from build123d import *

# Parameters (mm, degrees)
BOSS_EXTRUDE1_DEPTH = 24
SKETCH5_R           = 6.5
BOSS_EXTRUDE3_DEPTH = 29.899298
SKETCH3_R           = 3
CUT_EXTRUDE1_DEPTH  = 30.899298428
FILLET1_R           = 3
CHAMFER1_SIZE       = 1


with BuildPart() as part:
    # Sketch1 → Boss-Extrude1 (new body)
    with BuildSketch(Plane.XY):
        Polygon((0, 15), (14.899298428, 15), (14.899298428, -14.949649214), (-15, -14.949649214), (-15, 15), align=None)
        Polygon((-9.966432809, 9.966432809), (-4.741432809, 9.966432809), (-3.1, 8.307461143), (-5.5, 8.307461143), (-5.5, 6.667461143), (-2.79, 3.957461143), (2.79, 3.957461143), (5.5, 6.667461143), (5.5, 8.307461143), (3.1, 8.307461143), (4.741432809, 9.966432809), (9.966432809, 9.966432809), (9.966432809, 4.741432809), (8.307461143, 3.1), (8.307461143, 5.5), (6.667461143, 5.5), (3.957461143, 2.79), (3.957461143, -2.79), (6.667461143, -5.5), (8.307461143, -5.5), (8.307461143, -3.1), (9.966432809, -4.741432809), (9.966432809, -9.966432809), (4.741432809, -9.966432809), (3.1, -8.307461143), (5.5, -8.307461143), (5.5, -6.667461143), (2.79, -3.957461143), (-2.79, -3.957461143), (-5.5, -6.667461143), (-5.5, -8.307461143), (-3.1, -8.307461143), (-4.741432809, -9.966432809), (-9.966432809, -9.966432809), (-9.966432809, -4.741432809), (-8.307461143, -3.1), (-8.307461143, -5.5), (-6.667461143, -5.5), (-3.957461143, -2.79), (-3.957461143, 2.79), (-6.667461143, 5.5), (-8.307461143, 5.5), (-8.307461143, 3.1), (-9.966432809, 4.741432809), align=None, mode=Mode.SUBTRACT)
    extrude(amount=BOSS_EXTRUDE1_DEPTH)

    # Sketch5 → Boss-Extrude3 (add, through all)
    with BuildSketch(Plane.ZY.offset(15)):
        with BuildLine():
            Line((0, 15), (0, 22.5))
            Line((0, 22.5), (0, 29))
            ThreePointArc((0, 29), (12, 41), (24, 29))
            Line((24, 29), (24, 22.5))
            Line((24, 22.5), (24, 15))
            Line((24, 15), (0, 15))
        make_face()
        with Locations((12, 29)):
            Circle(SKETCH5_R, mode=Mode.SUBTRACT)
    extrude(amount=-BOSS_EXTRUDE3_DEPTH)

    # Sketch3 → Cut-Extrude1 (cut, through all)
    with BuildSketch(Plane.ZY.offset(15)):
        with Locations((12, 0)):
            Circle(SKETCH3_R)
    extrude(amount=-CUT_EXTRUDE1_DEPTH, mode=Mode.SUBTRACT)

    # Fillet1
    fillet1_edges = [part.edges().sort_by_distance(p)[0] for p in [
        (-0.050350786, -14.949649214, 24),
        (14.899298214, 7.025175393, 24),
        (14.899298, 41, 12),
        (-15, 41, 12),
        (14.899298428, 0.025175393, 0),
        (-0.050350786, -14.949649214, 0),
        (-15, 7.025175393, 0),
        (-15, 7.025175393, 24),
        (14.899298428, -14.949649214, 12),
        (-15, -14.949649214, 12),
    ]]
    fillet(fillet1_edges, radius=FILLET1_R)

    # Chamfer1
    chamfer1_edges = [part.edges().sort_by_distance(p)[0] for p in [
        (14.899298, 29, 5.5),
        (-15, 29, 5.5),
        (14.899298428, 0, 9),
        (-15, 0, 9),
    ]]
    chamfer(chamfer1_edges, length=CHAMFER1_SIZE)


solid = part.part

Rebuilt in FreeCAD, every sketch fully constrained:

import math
import FreeCAD as App
import Part
import Sketcher

V = App.Vector


def edges_at(feature, points):
    """Names of the edges that pass closest to the given points."""
    edges = feature.Shape.Edges
    near = lambda p: min(range(len(edges)), key=lambda i: edges[i].distToShape(Part.Vertex(*p))[0])
    return sorted({f"Edge{near(p) + 1}" for p in points})


def add_polygon(sketch, points):
    """Adds a closed chain of lines whose ends are joined by coincident constraints."""
    first, n = sketch.GeometryCount, len(points)
    for a, b in zip(points, points[1:] + points[:1]):
        sketch.addGeometry(Part.LineSegment(App.Vector(*a, 0), App.Vector(*b, 0)), False)
    for i in range(n):
        sketch.addConstraint(Sketcher.Constraint("Coincident", first + i, 2, first + (i + 1) % n, 1))

doc = App.newDocument("Part")
body = doc.addObject("PartDesign::Body", "Body")

sketch1 = doc.addObject("Sketcher::SketchObject", "Sketch")
body.addObject(sketch1)
sketch1.AttachmentSupport = (doc.XY_Plane, [""])
sketch1.MapMode = "FlatFace"
add_polygon(sketch1, [(14.9, 15), (-15, 15), (-15, -14.9), (14.9, -14.9)])
add_polygon(sketch1, [(-10, 10), (-4.7, 10), (-3.1, 8.3), (-5.5, 8.3), (-5.5, 6.7), (-2.8, 4), (2.8, 4), (5.5, 6.7), (5.5, 8.3), (3.1, 8.3), (4.7, 10), (10, 10), (10, 4.7), (8.3, 3.1), (8.3, 5.5), (6.7, 5.5), (4, 2.8), (4, -2.8), (6.7, -5.5), (8.3, -5.5), (8.3, -3.1), (10, -4.7), (10, -10), (4.7, -10), (3.1, -8.3), (5.5, -8.3), (5.5, -6.7), (2.8, -4), (-2.8, -4), (-5.5, -6.7), (-5.5, -8.3), (-3.1, -8.3), (-4.7, -10), (-10, -10), (-10, -4.7), (-8.3, -3.1), (-8.3, -5.5), (-6.7, -5.5), (-4, -2.8), (-4, 2.8), (-6.7, 5.5), (-8.3, 5.5), (-8.3, 3.1), (-10, 4.7)])
sketch1.addConstraint(Sketcher.Constraint("Horizontal", 0))
sketch1.addConstraint(Sketcher.Constraint("Vertical", 1))
sketch1.addConstraint(Sketcher.Constraint("Horizontal", 2))
sketch1.addConstraint(Sketcher.Constraint("Vertical", 3))
sketch1.addConstraint(Sketcher.Constraint("Horizontal", 4))
sketch1.addConstraint(Sketcher.Constraint("Horizontal", 6))
sketch1.addConstraint(Sketcher.Constraint("Vertical", 7))
sketch1.addConstraint(Sketcher.Constraint("Horizontal", 9))
sketch1.addConstraint(Sketcher.Constraint("Vertical", 11))
sketch1.addConstraint(Sketcher.Constraint("Horizontal", 12))
sketch1.addConstraint(Sketcher.Constraint("Horizontal", 14))
sketch1.addConstraint(Sketcher.Constraint("Vertical", 15))
sketch1.addConstraint(Sketcher.Constraint("Vertical", 17))
sketch1.addConstraint(Sketcher.Constraint("Horizontal", 18))
sketch1.addConstraint(Sketcher.Constraint("Vertical", 20))
sketch1.addConstraint(Sketcher.Constraint("Horizontal", 22))
sketch1.addConstraint(Sketcher.Constraint("Vertical", 23))
sketch1.addConstraint(Sketcher.Constraint("Vertical", 25))
sketch1.addConstraint(Sketcher.Constraint("Horizontal", 26))
sketch1.addConstraint(Sketcher.Constraint("Horizontal", 28))
sketch1.addConstraint(Sketcher.Constraint("Vertical", 29))
sketch1.addConstraint(Sketcher.Constraint("Horizontal", 31))
sketch1.addConstraint(Sketcher.Constraint("Vertical", 33))
sketch1.addConstraint(Sketcher.Constraint("Horizontal", 34))
sketch1.addConstraint(Sketcher.Constraint("Horizontal", 36))
sketch1.addConstraint(Sketcher.Constraint("Vertical", 37))
sketch1.addConstraint(Sketcher.Constraint("Vertical", 39))
sketch1.addConstraint(Sketcher.Constraint("Horizontal", 40))
sketch1.addConstraint(Sketcher.Constraint("Vertical", 42))
sketch1.addConstraint(Sketcher.Constraint("Horizontal", 44))
sketch1.addConstraint(Sketcher.Constraint("Vertical", 45))
sketch1.addConstraint(Sketcher.Constraint("Vertical", 47))
sketch1.addConstraint(Sketcher.Constraint("Symmetric", 4, 2, 26, 2, -1, 1))
sketch1.addConstraint(Sketcher.Constraint("Symmetric", 5, 2, 27, 2, -1, 1))
sketch1.addConstraint(Sketcher.Constraint("Symmetric", 7, 2, 29, 2, -1, 1))
sketch1.addConstraint(Sketcher.Constraint("Symmetric", 8, 2, 30, 2, -1, 1))
sketch1.addConstraint(Sketcher.Constraint("Symmetric", 10, 2, 32, 2, -1, 1))
sketch1.addConstraint(Sketcher.Constraint("Symmetric", 12, 2, 34, 2, -1, 1))
sketch1.addConstraint(Sketcher.Constraint("Symmetric", 13, 2, 35, 2, -1, 1))
sketch1.addConstraint(Sketcher.Constraint("Symmetric", 15, 2, 37, 2, -1, 1))
sketch1.addConstraint(Sketcher.Constraint("Symmetric", 16, 2, 38, 2, -1, 1))
sketch1.addConstraint(Sketcher.Constraint("Symmetric", 18, 2, 40, 2, -1, 1))
sketch1.addConstraint(Sketcher.Constraint("Symmetric", 19, 2, 41, 2, -1, 1))
sketch1.addConstraint(Sketcher.Constraint("Symmetric", 21, 2, 43, 2, -1, 1))
sketch1.addConstraint(Sketcher.Constraint("Symmetric", 23, 2, 45, 2, -1, 1))
sketch1.addConstraint(Sketcher.Constraint("Symmetric", 24, 2, 46, 2, -1, 1))
sketch1.addConstraint(Sketcher.Constraint("Symmetric", 7, 2, 10, 2, -2))
sketch1.addConstraint(Sketcher.Constraint("Symmetric", 5, 2, 12, 2, -2))
sketch1.addConstraint(Sketcher.Constraint("Symmetric", 4, 2, 13, 2, -2))
sketch1.addConstraint(Sketcher.Constraint("Symmetric", 24, 2, 37, 2, -2))
sketch1.addConstraint(Sketcher.Constraint("Symmetric", 23, 2, 38, 2, -2))
sketch1.addConstraint(Sketcher.Constraint("Symmetric", 21, 2, 40, 2, -2))
sketch1.addConstraint(Sketcher.Constraint("Perpendicular", 8, 10))
sketch1.addConstraint(Sketcher.Constraint("Perpendicular", 5, 16))
sketch1.addConstraint(Sketcher.Constraint("Parallel", 10, 19))
sketch1.addConstraint(Sketcher.Constraint("Perpendicular", 19, 21))
sketch1.addConstraint(Sketcher.Constraint("Perpendicular", 30, 32))
sketch1.addConstraint(Sketcher.Constraint("Perpendicular", 41, 43))
sketch1.addConstraint(Sketcher.Constraint("Horizontal", 20, 2, 41, 2))
sketch1.addConstraint(Sketcher.Constraint("Equal", 44, 7))
sketch1.addConstraint(Sketcher.Constraint("Equal", 36, 15))
sketch1.addConstraint(Sketcher.Constraint("Equal", 34, 17))
sketch1.addConstraint(Sketcher.Constraint("Equal", 31, 20))
sketch1.addConstraint(Sketcher.Constraint("Equal", 13, 16))
sketch1.addConstraint(Sketcher.Constraint("Equal", 10, 19))
sketch1.addConstraint(Sketcher.Constraint("DistanceX", 6, 2, 6, 1, 2.4))
sketch1.addConstraint(Sketcher.Constraint("DistanceX", 0, 2, -1, 1, 15.0))
sketch1.addConstraint(Sketcher.Constraint("DistanceY", -1, 1, 0, 2, 15.0))
sketch1.addConstraint(Sketcher.Constraint("DistanceX", 7, 2, 10, 2, 11.0))
sketch1.addConstraint(Sketcher.Constraint("DistanceX", 9, 1, 9, 2, 5.58))
sketch1.addConstraint(Sketcher.Constraint("DistanceX", 18, 2, 18, 1, 1.64))
sketch1.addConstraint(Sketcher.Constraint("DistanceX", 4, 1, 4, 2, 5.225))
sketch1.addConstraint(Sketcher.Constraint("DistanceX", 0, 2, 0, 1, 29.899298))
sketch1.addConstraint(Sketcher.Constraint("DistanceY", 1, 2, 1, 1, 29.949649))
sketch1.addConstraint(Sketcher.Constraint("Distance", 5, 2.333771))
sketch1.addConstraint(Sketcher.Constraint("DistanceY", -1, 1, 5, 2, 8.307461))
pad1 = doc.addObject("PartDesign::Pad", "Pad")
body.addObject(pad1)
pad1.Profile = sketch1
pad1.Length = 24

sketch2 = doc.addObject("Sketcher::SketchObject", "Sketch001")
body.addObject(sketch2)
sketch2.AttachmentSupport = (doc.YZ_Plane, [""])
sketch2.MapMode = "FlatFace"
sketch2.AttachmentOffset = App.Placement(V(0, 0, -15), App.Rotation())
sketch2.addGeometry(Part.LineSegment(V(29, 0, 0), V(15, 0, 0)), False)
sketch2.addGeometry(Part.LineSegment(V(15, 0, 0), V(15, 24, 0)), False)
sketch2.addGeometry(Part.LineSegment(V(15, 24, 0), V(29, 24, 0)), False)
sketch2.addGeometry(Part.ArcOfCircle(Part.Circle(V(29, 12, 0), V(0, 0, 1), 12), math.radians(-90), math.radians(90)), False)
sketch2.addGeometry(Part.Circle(V(29, 12, 0), V(0, 0, 1), 6), False)
sketch2.addConstraint(Sketcher.Constraint("Coincident", 0, 2, 1, 1))
sketch2.addConstraint(Sketcher.Constraint("Coincident", 1, 2, 2, 1))
sketch2.addConstraint(Sketcher.Constraint("Tangent", 2, 2, 3, 2))
sketch2.addConstraint(Sketcher.Constraint("Tangent", 3, 1, 0, 1))
sketch2.addConstraint(Sketcher.Constraint("Horizontal", 0))
sketch2.addConstraint(Sketcher.Constraint("Vertical", 1))
sketch2.addConstraint(Sketcher.Constraint("Horizontal", 2))
sketch2.addConstraint(Sketcher.Constraint("Coincident", 4, 3, 3, 3))
sketch2.addConstraint(Sketcher.Constraint("PointOnObject", 0, 2, -1))
sketch2.addConstraint(Sketcher.Constraint("Diameter", 4, 13.0))
sketch2.addConstraint(Sketcher.Constraint("Radius", 3, 12.0))
sketch2.addConstraint(Sketcher.Constraint("DistanceX", 0, 2, 0, 1, 14.0))
sketch2.addConstraint(Sketcher.Constraint("DistanceX", -1, 1, 3, 3, 29.0))
pad2 = doc.addObject("PartDesign::Pad", "Pad001")
body.addObject(pad2)
pad2.Profile = sketch2
pad2.Length = 29.899298

sketch3 = doc.addObject("Sketcher::SketchObject", "Sketch002")
body.addObject(sketch3)
sketch3.AttachmentSupport = (doc.YZ_Plane, [""])
sketch3.MapMode = "FlatFace"
sketch3.AttachmentOffset = App.Placement(V(0, 0, -15), App.Rotation())
sketch3.addGeometry(Part.Circle(V(0, 12, 0), V(0, 0, 1), 3), False)
sketch3.addConstraint(Sketcher.Constraint("PointOnObject", 0, 3, -2))
sketch3.addConstraint(Sketcher.Constraint("Diameter", 0, 6.0))
sketch3.addConstraint(Sketcher.Constraint("DistanceY", -1, 1, 0, 3, 12.0))
pocket1 = doc.addObject("PartDesign::Pocket", "Pocket")
body.addObject(pocket1)
pocket1.Profile = sketch3
pocket1.Type = "ThroughAll"
pocket1.Reversed = True
doc.recompute()

fillet = doc.addObject("PartDesign::Fillet", "Fillet")
body.addObject(fillet)
fillet.Base = (pocket1, edges_at(pocket1, [
    (-0.05, -14.95, 24),
    (14.899, 0.025, 24),
    (14.899, 41, 12),
    (-15, 41, 12),
    (14.899, 0.025, 0),
    (-0.05, -14.95, 0),
    (-15, 7.025, 0),
    (-15, 7.025, 24),
    (14.899, -14.95, 12),
    (-15, -14.95, 12),
]))
fillet.Radius = 3
doc.recompute()

chamfer = doc.addObject("PartDesign::Chamfer", "Chamfer")
body.addObject(chamfer)
chamfer.Base = (fillet, edges_at(fillet, [
    (14.899, 29, 5.5),
    (-15, 29, 5.5),
    (14.899, 0, 9),
    (-15, 0, 9),
]))
chamfer.Size = 1

doc.recompute()
